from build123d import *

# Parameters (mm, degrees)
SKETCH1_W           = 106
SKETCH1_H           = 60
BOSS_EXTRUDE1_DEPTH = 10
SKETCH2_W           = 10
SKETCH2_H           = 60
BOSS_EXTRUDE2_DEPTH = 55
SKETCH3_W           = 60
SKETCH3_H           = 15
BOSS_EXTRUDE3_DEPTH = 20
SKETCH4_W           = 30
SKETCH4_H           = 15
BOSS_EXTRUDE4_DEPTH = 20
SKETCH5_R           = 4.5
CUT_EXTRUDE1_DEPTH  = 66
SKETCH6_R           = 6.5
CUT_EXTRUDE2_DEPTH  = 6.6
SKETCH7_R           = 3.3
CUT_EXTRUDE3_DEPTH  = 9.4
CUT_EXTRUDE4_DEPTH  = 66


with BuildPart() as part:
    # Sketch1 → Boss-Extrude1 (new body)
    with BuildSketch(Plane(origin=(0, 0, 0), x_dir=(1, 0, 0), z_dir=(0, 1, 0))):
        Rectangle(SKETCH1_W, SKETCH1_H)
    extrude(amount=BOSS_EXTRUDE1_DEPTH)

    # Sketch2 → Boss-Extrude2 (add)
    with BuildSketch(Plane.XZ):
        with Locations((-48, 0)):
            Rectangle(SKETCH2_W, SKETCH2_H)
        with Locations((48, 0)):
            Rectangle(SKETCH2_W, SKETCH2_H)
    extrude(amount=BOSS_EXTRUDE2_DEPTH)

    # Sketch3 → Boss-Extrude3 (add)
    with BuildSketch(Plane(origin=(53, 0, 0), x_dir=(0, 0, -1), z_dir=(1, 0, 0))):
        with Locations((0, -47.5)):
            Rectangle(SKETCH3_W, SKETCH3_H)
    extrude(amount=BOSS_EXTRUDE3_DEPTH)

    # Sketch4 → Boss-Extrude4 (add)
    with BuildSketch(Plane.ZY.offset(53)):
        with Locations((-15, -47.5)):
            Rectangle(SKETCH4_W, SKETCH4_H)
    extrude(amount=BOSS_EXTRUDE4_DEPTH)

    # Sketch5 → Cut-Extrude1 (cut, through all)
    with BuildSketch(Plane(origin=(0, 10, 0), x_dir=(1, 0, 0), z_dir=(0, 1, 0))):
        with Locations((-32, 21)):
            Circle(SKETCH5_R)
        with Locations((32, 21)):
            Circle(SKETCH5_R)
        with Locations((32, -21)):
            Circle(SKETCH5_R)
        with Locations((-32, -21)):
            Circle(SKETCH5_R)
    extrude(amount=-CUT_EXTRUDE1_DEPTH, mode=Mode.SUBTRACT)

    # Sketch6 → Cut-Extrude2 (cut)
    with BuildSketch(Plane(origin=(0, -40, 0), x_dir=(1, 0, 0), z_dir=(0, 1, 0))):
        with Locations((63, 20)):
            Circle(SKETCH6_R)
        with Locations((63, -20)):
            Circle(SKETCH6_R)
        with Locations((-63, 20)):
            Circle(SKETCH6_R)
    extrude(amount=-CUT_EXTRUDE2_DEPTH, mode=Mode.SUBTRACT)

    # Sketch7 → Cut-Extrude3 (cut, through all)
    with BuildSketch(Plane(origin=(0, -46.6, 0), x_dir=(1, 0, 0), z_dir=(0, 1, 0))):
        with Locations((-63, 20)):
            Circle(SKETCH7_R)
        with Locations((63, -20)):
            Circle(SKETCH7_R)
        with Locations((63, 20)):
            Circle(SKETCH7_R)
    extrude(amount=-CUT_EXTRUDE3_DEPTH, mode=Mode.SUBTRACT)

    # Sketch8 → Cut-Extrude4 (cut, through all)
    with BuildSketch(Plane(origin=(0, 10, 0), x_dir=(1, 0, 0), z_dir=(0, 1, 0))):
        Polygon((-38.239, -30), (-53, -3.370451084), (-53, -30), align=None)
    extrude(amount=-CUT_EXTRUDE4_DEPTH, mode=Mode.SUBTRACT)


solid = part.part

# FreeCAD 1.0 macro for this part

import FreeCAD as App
import Part
import Sketcher

V = App.Vector
Q = App.Units.Quantity

doc = App.newDocument("Part")
body = doc.addObject("PartDesign::Body", "Body")

# Sketch on XZ plane
sketch1 = body.newObject("Sketcher::SketchObject", "Sketch")
sketch1.AttachmentSupport = (doc.getObject("XZ_Plane"), [""])
sketch1.MapMode = "FlatFace"
sketch1.addGeometry(Part.LineSegment(V(-53, -30, 0), V(-53, 30, 0)), False)
sketch1.addGeometry(Part.LineSegment(V(-53, 30, 0), V(53, 30, 0)), False)
sketch1.addGeometry(Part.LineSegment(V(53, 30, 0), V(53, -30, 0)), False)
sketch1.addGeometry(Part.LineSegment(V(53, -30, 0), V(-53, -30, 0)), False)
sketch1.addConstraint(Sketcher.Constraint("Coincident", 0, 2, 1, 1))
sketch1.addConstraint(Sketcher.Constraint("Coincident", 1, 2, 2, 1))
sketch1.addConstraint(Sketcher.Constraint("Coincident", 2, 2, 3, 1))
sketch1.addConstraint(Sketcher.Constraint("Coincident", 3, 2, 0, 1))
sketch1.addConstraint(Sketcher.Constraint("Vertical", 0))
sketch1.addConstraint(Sketcher.Constraint("Horizontal", 1))
sketch1.addConstraint(Sketcher.Constraint("Vertical", 2))
sketch1.addConstraint(Sketcher.Constraint("Horizontal", 3))
sketch1.addConstraint(Sketcher.Constraint("Symmetric", 0, 2, 2, 2, -1, 1))
sketch1.addConstraint(Sketcher.Constraint("DistanceX", 1, 1, 1, 2, 106.0))
sketch1.addConstraint(Sketcher.Constraint("DistanceY", 0, 1, 0, 2, 60.0))
pad1 = body.newObject("PartDesign::Pad", "Pad")
pad1.Profile = sketch1
pad1.Length = 10
pad1.Reversed = True

# Sketch on XZ plane
sketch2 = body.newObject("Sketcher::SketchObject", "Sketch001")
sketch2.AttachmentSupport = (doc.getObject("XZ_Plane"), [""])
sketch2.MapMode = "FlatFace"
sketch2.addGeometry(Part.LineSegment(V(-53, 30, 0), V(-53, -30, 0)), False)
sketch2.addGeometry(Part.LineSegment(V(-53, -30, 0), V(-43, -30, 0)), False)
sketch2.addGeometry(Part.LineSegment(V(-43, -30, 0), V(-43, 30, 0)), False)
sketch2.addGeometry(Part.LineSegment(V(-43, 30, 0), V(-53, 30, 0)), False)
sketch2.addGeometry(Part.LineSegment(V(43, 30, 0), V(43, -30, 0)), False)
sketch2.addGeometry(Part.LineSegment(V(43, -30, 0), V(53, -30, 0)), False)
sketch2.addGeometry(Part.LineSegment(V(53, -30, 0), V(53, 30, 0)), False)
sketch2.addGeometry(Part.LineSegment(V(53, 30, 0), V(43, 30, 0)), False)
sketch2.addConstraint(Sketcher.Constraint("Coincident", 0, 2, 1, 1))
sketch2.addConstraint(Sketcher.Constraint("Coincident", 1, 2, 2, 1))
sketch2.addConstraint(Sketcher.Constraint("Coincident", 2, 2, 3, 1))
sketch2.addConstraint(Sketcher.Constraint("Coincident", 3, 2, 0, 1))
sketch2.addConstraint(Sketcher.Constraint("Coincident", 4, 2, 5, 1))
sketch2.addConstraint(Sketcher.Constraint("Coincident", 5, 2, 6, 1))
sketch2.addConstraint(Sketcher.Constraint("Coincident", 6, 2, 7, 1))
sketch2.addConstraint(Sketcher.Constraint("Coincident", 7, 2, 4, 1))
sketch2.addConstraint(Sketcher.Constraint("Vertical", 0))
sketch2.addConstraint(Sketcher.Constraint("Horizontal", 1))
sketch2.addConstraint(Sketcher.Constraint("Vertical", 2))
sketch2.addConstraint(Sketcher.Constraint("Horizontal", 3))
sketch2.addConstraint(Sketcher.Constraint("Vertical", 4))
sketch2.addConstraint(Sketcher.Constraint("Horizontal", 5))
sketch2.addConstraint(Sketcher.Constraint("Vertical", 6))
sketch2.addConstraint(Sketcher.Constraint("Horizontal", 7))
sketch2.addConstraint(Sketcher.Constraint("Symmetric", 2, 2, 4, 2, -1, 1))
sketch2.addConstraint(Sketcher.Constraint("Symmetric", 0, 2, 6, 2, -1, 1))
sketch2.addConstraint(Sketcher.Constraint("Horizontal", 1, 2, 4, 2))
sketch2.addConstraint(Sketcher.Constraint("DistanceX", 1, 1, 1, 2, 10.0))
sketch2.addConstraint(Sketcher.Constraint("DistanceY", 0, 2, 0, 1, 60.0))
sketch2.addConstraint(Sketcher.Constraint("DistanceX", 0, 2, -1, 1, 53.0))
pad2 = body.newObject("PartDesign::Pad", "Pad001")
pad2.Profile = sketch2
pad2.Length = 55

# Sketch on YZ plane
sketch3 = body.newObject("Sketcher::SketchObject", "Sketch002")
sketch3.AttachmentSupport = (doc.getObject("YZ_Plane"), [""])
sketch3.MapMode = "FlatFace"
sketch3.AttachmentOffset = App.Placement(V(0, 0, 53), App.Rotation())
sketch3.addGeometry(Part.LineSegment(V(-40, 30, 0), V(-55, 30, 0)), False)
sketch3.addGeometry(Part.LineSegment(V(-55, 30, 0), V(-55, -30, 0)), False)
sketch3.addGeometry(Part.LineSegment(V(-55, -30, 0), V(-40, -30, 0)), False)
sketch3.addGeometry(Part.LineSegment(V(-40, -30, 0), V(-40, 30, 0)), False)
sketch3.addConstraint(Sketcher.Constraint("Coincident", 0, 2, 1, 1))
sketch3.addConstraint(Sketcher.Constraint("Coincident", 1, 2, 2, 1))
sketch3.addConstraint(Sketcher.Constraint("Coincident", 2, 2, 3, 1))
sketch3.addConstraint(Sketcher.Constraint("Coincident", 3, 2, 0, 1))
sketch3.addConstraint(Sketcher.Constraint("Horizontal", 0))
sketch3.addConstraint(Sketcher.Constraint("Vertical", 1))
sketch3.addConstraint(Sketcher.Constraint("Horizontal", 2))
sketch3.addConstraint(Sketcher.Constraint("Vertical", 3))
sketch3.addConstraint(Sketcher.Constraint("DistanceX", 0, 2, 0, 1, 15.0))
sketch3.addConstraint(Sketcher.Constraint("DistanceY", 1, 2, 1, 1, 60.0))
sketch3.addConstraint(Sketcher.Constraint("DistanceX", 0, 2, -1, 1, 55.0))
sketch3.addConstraint(Sketcher.Constraint("DistanceY", -1, 1, 0, 2, 30.0))
pad3 = body.newObject("PartDesign::Pad", "Pad002")
pad3.Profile = sketch3
pad3.Length = 20

# Sketch on YZ plane
sketch4 = body.newObject("Sketcher::SketchObject", "Sketch003")
sketch4.AttachmentSupport = (doc.getObject("YZ_Plane"), [""])
sketch4.MapMode = "FlatFace"
sketch4.AttachmentOffset = App.Placement(V(0, 0, -53), App.Rotation())
sketch4.addGeometry(Part.LineSegment(V(-40, -30, 0), V(-55, -30, 0)), False)
sketch4.addGeometry(Part.LineSegment(V(-55, -30, 0), V(-55, 0, 0)), False)
sketch4.addGeometry(Part.LineSegment(V(-55, 0, 0), V(-40, 0, 0)), False)
sketch4.addGeometry(Part.LineSegment(V(-40, 0, 0), V(-40, -30, 0)), False)
sketch4.addConstraint(Sketcher.Constraint("Coincident", 0, 2, 1, 1))
sketch4.addConstraint(Sketcher.Constraint("Coincident", 1, 2, 2, 1))
sketch4.addConstraint(Sketcher.Constraint("Coincident", 2, 2, 3, 1))
sketch4.addConstraint(Sketcher.Constraint("Coincident", 3, 2, 0, 1))
sketch4.addConstraint(Sketcher.Constraint("Horizontal", 0))
sketch4.addConstraint(Sketcher.Constraint("Vertical", 1))
sketch4.addConstraint(Sketcher.Constraint("Horizontal", 2))
sketch4.addConstraint(Sketcher.Constraint("Vertical", 3))
sketch4.addConstraint(Sketcher.Constraint("PointOnObject", 1, 2, -1))
sketch4.addConstraint(Sketcher.Constraint("DistanceX", 0, 2, 0, 1, 15.0))
sketch4.addConstraint(Sketcher.Constraint("DistanceY", 1, 1, 1, 2, 30.0))
sketch4.addConstraint(Sketcher.Constraint("DistanceX", 0, 2, -1, 1, 55.0))
pad4 = body.newObject("PartDesign::Pad", "Pad003")
pad4.Profile = sketch4
pad4.Length = 20
pad4.Reversed = True

# Sketch on XZ plane
sketch5 = body.newObject("Sketcher::SketchObject", "Sketch004")
sketch5.AttachmentSupport = (doc.getObject("XZ_Plane"), [""])
sketch5.MapMode = "FlatFace"
sketch5.AttachmentOffset = App.Placement(V(0, 0, -10), App.Rotation())
sketch5.addGeometry(Part.Circle(V(-32, -21, 0), V(0, 0, 1), 4.5), False)
sketch5.addGeometry(Part.Circle(V(32, -21, 0), V(0, 0, 1), 4.5), False)
sketch5.addGeometry(Part.Circle(V(32, 21, 0), V(0, 0, 1), 4.5), False)
sketch5.addGeometry(Part.Circle(V(-32, 21, 0), V(0, 0, 1), 4.5), False)
sketch5.addConstraint(Sketcher.Constraint("Equal", 0, 1))
sketch5.addConstraint(Sketcher.Constraint("Equal", 1, 2))
sketch5.addConstraint(Sketcher.Constraint("Equal", 2, 3))
sketch5.addConstraint(Sketcher.Constraint("Symmetric", 0, 3, 2, 3, -1, 1))
sketch5.addConstraint(Sketcher.Constraint("Symmetric", 1, 3, 3, 3, -1, 1))
sketch5.addConstraint(Sketcher.Constraint("Symmetric", 0, 3, 1, 3, -2))
sketch5.addConstraint(Sketcher.Constraint("Diameter", 0, 9.0))
sketch5.addConstraint(Sketcher.Constraint("DistanceX", 0, 3, -1, 1, 32.0))
sketch5.addConstraint(Sketcher.Constraint("DistanceY", 0, 3, -1, 1, 21.0))
pocket1 = body.newObject("PartDesign::Pocket", "Pocket")
pocket1.Profile = sketch5
pocket1.Type = "ThroughAll"
pocket1.Reversed = True

# Sketch on XZ plane
sketch6 = body.newObject("Sketcher::SketchObject", "Sketch005")
sketch6.AttachmentSupport = (doc.getObject("XZ_Plane"), [""])
sketch6.MapMode = "FlatFace"
sketch6.AttachmentOffset = App.Placement(V(0, 0, 40), App.Rotation())
sketch6.addGeometry(Part.Circle(V(63, -20, 0), V(0, 0, 1), 6), False)
sketch6.addGeometry(Part.Circle(V(63, 20, 0), V(0, 0, 1), 6), False)
sketch6.addGeometry(Part.Circle(V(-63, -20, 0), V(0, 0, 1), 6), False)
sketch6.addConstraint(Sketcher.Constraint("Equal", 0, 1))
sketch6.addConstraint(Sketcher.Constraint("Equal", 1, 2))
sketch6.addConstraint(Sketcher.Constraint("Symmetric", 1, 3, 2, 3, -1, 1))
sketch6.addConstraint(Sketcher.Constraint("Symmetric", 0, 3, 2, 3, -2))
sketch6.addConstraint(Sketcher.Constraint("Diameter", 0, 13.0))
sketch6.addConstraint(Sketcher.Constraint("DistanceX", -1, 1, 0, 3, 63.0))
sketch6.addConstraint(Sketcher.Constraint("DistanceY", 0, 3, -1, 1, 20.0))
pocket2 = body.newObject("PartDesign::Pocket", "Pocket001")
pocket2.Profile = sketch6
pocket2.Length = 6.6
pocket2.Reversed = True

# Sketch on XZ plane
sketch7 = body.newObject("Sketcher::SketchObject", "Sketch006")
sketch7.AttachmentSupport = (doc.getObject("XZ_Plane"), [""])
sketch7.MapMode = "FlatFace"
sketch7.AttachmentOffset = App.Placement(V(0, 0, 46.6), App.Rotation())
sketch7.addGeometry(Part.Circle(V(-63, -20, 0), V(0, 0, 1), 3.3), False)
sketch7.addGeometry(Part.Circle(V(63, 20, 0), V(0, 0, 1), 3.3), False)
sketch7.addGeometry(Part.Circle(V(63, -20, 0), V(0, 0, 1), 3.3), False)
sketch7.addConstraint(Sketcher.Constraint("Equal", 0, 1))
sketch7.addConstraint(Sketcher.Constraint("Equal", 1, 2))
sketch7.addConstraint(Sketcher.Constraint("Symmetric", 0, 3, 1, 3, -1, 1))
sketch7.addConstraint(Sketcher.Constraint("Symmetric", 0, 3, 2, 3, -2))
sketch7.addConstraint(Sketcher.Constraint("Diameter", 0, 6.6))
sketch7.addConstraint(Sketcher.Constraint("DistanceX", 0, 3, -1, 1, 63.0))
sketch7.addConstraint(Sketcher.Constraint("DistanceY", 0, 3, -1, 1, 20.0))
pocket3 = body.newObject("PartDesign::Pocket", "Pocket002")
pocket3.Profile = sketch7
pocket3.Type = "ThroughAll"
pocket3.Reversed = True

# Sketch on XZ plane
sketch8 = body.newObject("Sketcher::SketchObject", "Sketch007")
sketch8.AttachmentSupport = (doc.getObject("XZ_Plane"), [""])
sketch8.MapMode = "FlatFace"
sketch8.AttachmentOffset = App.Placement(V(0, 0, -10), App.Rotation())
sketch8.addGeometry(Part.LineSegment(V(-38, 30, 0), V(-53, 3, 0)), False)
sketch8.addGeometry(Part.LineSegment(V(-53, 3, 0), V(-53, 30, 0)), False)
sketch8.addGeometry(Part.LineSegment(V(-53, 30, 0), V(-38, 30, 0)), False)
sketch8.addConstraint(Sketcher.Constraint("Coincident", 0, 2, 1, 1))
sketch8.addConstraint(Sketcher.Constraint("Coincident", 1, 2, 2, 1))
sketch8.addConstraint(Sketcher.Constraint("Coincident", 2, 2, 0, 1))
sketch8.addConstraint(Sketcher.Constraint("Vertical", 1))
sketch8.addConstraint(Sketcher.Constraint("Horizontal", 2))
sketch8.addConstraint(Sketcher.Constraint("Angle", 0, Q("-119 deg")))
sketch8.addConstraint(Sketcher.Constraint("DistanceX", 0, 2, -1, 1, 53.0))
sketch8.addConstraint(Sketcher.Constraint("DistanceY", -1, 1, 1, 2, 30.0))
sketch8.addConstraint(Sketcher.Constraint("DistanceX", 2, 1, 2, 2, 14.761))
pocket4 = body.newObject("PartDesign::Pocket", "Pocket003")
pocket4.Profile = sketch8
pocket4.Type = "ThroughAll"
pocket4.Reversed = True

doc.recompute()
